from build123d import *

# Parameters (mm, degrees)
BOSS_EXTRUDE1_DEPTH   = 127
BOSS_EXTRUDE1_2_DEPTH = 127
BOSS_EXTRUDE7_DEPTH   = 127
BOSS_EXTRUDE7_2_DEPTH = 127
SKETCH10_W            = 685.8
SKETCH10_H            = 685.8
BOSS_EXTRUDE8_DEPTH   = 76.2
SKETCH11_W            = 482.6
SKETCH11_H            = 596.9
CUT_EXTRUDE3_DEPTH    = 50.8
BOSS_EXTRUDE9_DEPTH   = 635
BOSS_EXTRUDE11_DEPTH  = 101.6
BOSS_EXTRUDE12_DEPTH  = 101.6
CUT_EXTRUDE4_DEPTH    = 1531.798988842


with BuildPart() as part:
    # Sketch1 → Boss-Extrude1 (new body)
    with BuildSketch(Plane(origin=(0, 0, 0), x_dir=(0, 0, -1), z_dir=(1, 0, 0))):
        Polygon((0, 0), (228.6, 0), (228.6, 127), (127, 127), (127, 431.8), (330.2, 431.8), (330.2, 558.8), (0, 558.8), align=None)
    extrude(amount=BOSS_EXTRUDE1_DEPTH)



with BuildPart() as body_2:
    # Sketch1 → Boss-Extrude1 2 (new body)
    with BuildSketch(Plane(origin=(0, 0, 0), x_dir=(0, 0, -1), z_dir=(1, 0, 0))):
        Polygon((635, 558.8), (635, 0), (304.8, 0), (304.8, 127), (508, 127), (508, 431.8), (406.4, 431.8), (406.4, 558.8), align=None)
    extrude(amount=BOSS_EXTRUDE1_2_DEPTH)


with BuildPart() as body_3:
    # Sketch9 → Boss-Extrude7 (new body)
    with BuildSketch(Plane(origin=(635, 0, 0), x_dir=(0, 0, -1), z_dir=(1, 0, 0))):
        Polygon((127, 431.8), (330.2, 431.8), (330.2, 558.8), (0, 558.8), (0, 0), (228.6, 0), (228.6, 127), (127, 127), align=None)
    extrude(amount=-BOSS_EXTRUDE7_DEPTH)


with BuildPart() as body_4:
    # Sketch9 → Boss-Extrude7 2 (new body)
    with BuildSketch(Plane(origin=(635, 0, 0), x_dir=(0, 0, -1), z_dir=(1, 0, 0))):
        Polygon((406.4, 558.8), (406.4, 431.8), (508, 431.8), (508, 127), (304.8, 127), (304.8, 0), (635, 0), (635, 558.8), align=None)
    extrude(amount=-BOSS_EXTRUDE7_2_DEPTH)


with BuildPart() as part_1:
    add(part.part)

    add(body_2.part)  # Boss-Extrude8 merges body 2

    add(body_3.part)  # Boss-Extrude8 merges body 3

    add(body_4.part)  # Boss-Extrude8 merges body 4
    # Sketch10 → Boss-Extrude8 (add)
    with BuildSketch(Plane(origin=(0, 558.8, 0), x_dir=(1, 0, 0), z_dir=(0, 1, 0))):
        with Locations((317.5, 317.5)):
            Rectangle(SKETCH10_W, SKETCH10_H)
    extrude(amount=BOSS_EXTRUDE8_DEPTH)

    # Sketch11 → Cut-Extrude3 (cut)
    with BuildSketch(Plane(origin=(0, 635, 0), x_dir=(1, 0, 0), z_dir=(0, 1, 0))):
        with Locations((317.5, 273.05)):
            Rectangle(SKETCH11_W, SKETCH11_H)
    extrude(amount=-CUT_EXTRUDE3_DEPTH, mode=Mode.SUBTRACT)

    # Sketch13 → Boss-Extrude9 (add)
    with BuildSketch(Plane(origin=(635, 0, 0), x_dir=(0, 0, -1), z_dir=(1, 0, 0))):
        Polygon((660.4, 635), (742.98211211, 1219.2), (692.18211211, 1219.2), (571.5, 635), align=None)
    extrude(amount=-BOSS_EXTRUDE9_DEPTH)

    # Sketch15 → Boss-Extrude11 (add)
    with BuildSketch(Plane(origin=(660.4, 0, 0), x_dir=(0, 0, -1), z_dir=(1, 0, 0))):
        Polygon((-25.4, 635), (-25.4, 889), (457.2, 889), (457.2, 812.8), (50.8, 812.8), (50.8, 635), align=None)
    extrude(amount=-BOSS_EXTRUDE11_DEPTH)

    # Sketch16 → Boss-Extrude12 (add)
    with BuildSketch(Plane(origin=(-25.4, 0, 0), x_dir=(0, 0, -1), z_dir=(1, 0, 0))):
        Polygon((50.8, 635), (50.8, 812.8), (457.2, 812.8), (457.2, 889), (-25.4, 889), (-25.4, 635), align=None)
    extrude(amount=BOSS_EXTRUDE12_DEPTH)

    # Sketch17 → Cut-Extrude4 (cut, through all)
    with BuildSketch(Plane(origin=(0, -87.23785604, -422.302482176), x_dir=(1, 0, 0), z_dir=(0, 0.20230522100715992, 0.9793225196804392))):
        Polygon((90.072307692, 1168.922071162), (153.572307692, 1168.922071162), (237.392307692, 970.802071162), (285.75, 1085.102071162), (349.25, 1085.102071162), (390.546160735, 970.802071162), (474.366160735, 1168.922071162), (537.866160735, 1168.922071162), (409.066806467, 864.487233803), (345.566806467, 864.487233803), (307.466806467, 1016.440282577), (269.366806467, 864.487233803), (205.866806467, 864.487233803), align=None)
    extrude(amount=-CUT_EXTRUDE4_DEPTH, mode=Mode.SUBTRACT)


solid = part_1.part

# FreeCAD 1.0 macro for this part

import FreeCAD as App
import Part
import Sketcher
from FreeCAD import Vector
Q = App.Units.Quantity

doc = App.newDocument("Part")
params = doc.addObject("Spreadsheet::Sheet", "Params")
for row, (alias, value) in enumerate([
    ("sketch1_width", "5 in"),
    ("sketch1_width2", "12 in"),
    ("sketch1_height", "9 in"),
    ("sketch1_height2", "4 in"),
    ("sketch1_height3", "8 in"),
    ("pad1_length", "5 in"),
    ("sketch2_width", "22 in"),
    ("sketch2_width2", "5 in"),
    ("sketch2_height", "9 in"),
    ("sketch2_height2", "4 in"),
    ("sketch2_height3", "8 in"),
    ("pad2_length", "5 in"),
    ("sketch3_width", "5 in"),
    ("sketch3_width2", "22 in"),
    ("sketch3_height", "8 in"),
    ("sketch3_height2", "13 in"),
    ("sketch3_height3", "9 in"),
    ("pad3_length", "5 in"),
    ("sketch4_width", "5 in"),
    ("sketch4_width2", "12 in"),
    ("sketch4_height", "4 in"),
    ("sketch4_height2", "8 in"),
    ("sketch4_height3", "13 in"),
    ("pad4_length", "5 in"),
    ("sketch5_width", "27 in"),
    ("pad5_length", "3 in"),
    ("sketch6_width", "19 in"),
    ("sketch6_height", "23.5 in"),
    ("pocket1_length", "2 in"),
    ("sketch7_height", "2 in"),
    ("sketch7_height2", "3.5 in"),
    ("pad6_length", "25 in"),
    ("sketch8_width", "10 in"),
    ("sketch8_width2", "7 in"),
    ("sketch8_height", "16 in"),
    ("pad7_length", "4 in"),
    ("sketch9_width", "7 in"),
    ("sketch9_width2", "3 in"),
    ("sketch9_height", "16 in"),
    ("pad8_length", "4 in"),
    ("sketch10_width", "2.5 in"),
], start=1):
    params.set(f"A{row}", alias)
    params.set(f"B{row}", "=" + value)
    params.setAlias(f"B{row}", alias)

body = doc.addObject("PartDesign::Body", "Body")

# Sketch on YZ plane
sketch1 = body.newObject("Sketcher::SketchObject", "Sketch")
sketch1.AttachmentSupport = (doc.getObject("YZ_Plane"), [""])
sketch1.MapMode = "FlatFace"
sketch1.addGeometry([
    Part.LineSegment(Vector(0, 0, 0), Vector(0, -228.6, 0)),  # 0
    Part.LineSegment(Vector(0, -228.6, 0), Vector(127, -228.6, 0)),  # 1
    Part.LineSegment(Vector(127, -228.6, 0), Vector(127, -127, 0)),  # 2
    Part.LineSegment(Vector(127, -127, 0), Vector(431.8, -127, 0)),  # 3
    Part.LineSegment(Vector(431.8, -127, 0), Vector(431.8, -330.2, 0)),  # 4
    Part.LineSegment(Vector(431.8, -330.2, 0), Vector(558.8, -330.2, 0)),  # 5
    Part.LineSegment(Vector(558.8, -330.2, 0), Vector(558.8, 0, 0)),  # 6
    Part.LineSegment(Vector(558.8, 0, 0), Vector(0, 0, 0)),  # 7
], False)
sketch1.addConstraint([
    Sketcher.Constraint("Coincident", 0, 2, 1, 1),
    Sketcher.Constraint("Coincident", 1, 2, 2, 1),
    Sketcher.Constraint("Coincident", 2, 2, 3, 1),
    Sketcher.Constraint("Coincident", 3, 2, 4, 1),
    Sketcher.Constraint("Coincident", 4, 2, 5, 1),
    Sketcher.Constraint("Coincident", 5, 2, 6, 1),
    Sketcher.Constraint("Coincident", 6, 2, 7, 1),
    Sketcher.Constraint("Coincident", 7, 2, 0, 1),
    Sketcher.Constraint("Vertical", 0),
    Sketcher.Constraint("Horizontal", 1),
    Sketcher.Constraint("Vertical", 2),
    Sketcher.Constraint("Horizontal", 3),
    Sketcher.Constraint("Vertical", 4),
    Sketcher.Constraint("Horizontal", 5),
    Sketcher.Constraint("Vertical", 6),
    Sketcher.Constraint("Horizontal", 7),
    Sketcher.Constraint("Coincident", 7, 2, -1, 1),
    Sketcher.Constraint("Equal", 1, 5),
    Sketcher.Constraint("DistanceX", 1, 1, 1, 2, Q("5 in")),
    Sketcher.Constraint("DistanceX", 3, 1, 3, 2, Q("12 in")),
    Sketcher.Constraint("DistanceY", 0, 2, 0, 1, Q("9 in")),
    Sketcher.Constraint("DistanceY", 2, 1, 2, 2, Q("4 in")),
    Sketcher.Constraint("DistanceY", 4, 2, 4, 1, Q("8 in")),
])
sketch1.setExpression("Constraints[18]", "Params.sketch1_width")
sketch1.setExpression("Constraints[19]", "Params.sketch1_width2")
sketch1.setExpression("Constraints[20]", "Params.sketch1_height")
sketch1.setExpression("Constraints[21]", "Params.sketch1_height2")
sketch1.setExpression("Constraints[22]", "Params.sketch1_height3")
pad1 = body.newObject("PartDesign::Pad", "Pad")
pad1.Profile = sketch1
pad1.setExpression("Length", "Params.pad1_length")
body2 = doc.addObject("PartDesign::Body", "Body001")

# Sketch on YZ plane
sketch2 = body2.newObject("Sketcher::SketchObject", "Sketch001")
sketch2.AttachmentSupport = (doc.getObject("YZ_Plane001"), [""])
sketch2.MapMode = "FlatFace"
sketch2.addGeometry([
    Part.LineSegment(Vector(0, -635, 0), Vector(558.8, -635, 0)),  # 0
    Part.LineSegment(Vector(558.8, -635, 0), Vector(558.8, -406.4, 0)),  # 1
    Part.LineSegment(Vector(558.8, -406.4, 0), Vector(431.8, -406.4, 0)),  # 2
    Part.LineSegment(Vector(431.8, -406.4, 0), Vector(431.8, -508, 0)),  # 3
    Part.LineSegment(Vector(431.8, -508, 0), Vector(127, -508, 0)),  # 4
    Part.LineSegment(Vector(127, -508, 0), Vector(127, -304.8, 0)),  # 5
    Part.LineSegment(Vector(127, -304.8, 0), Vector(0, -304.8, 0)),  # 6
    Part.LineSegment(Vector(0, -304.8, 0), Vector(0, -635, 0)),  # 7
], False)
sketch2.addConstraint([
    Sketcher.Constraint("Coincident", 0, 2, 1, 1),
    Sketcher.Constraint("Coincident", 1, 2, 2, 1),
    Sketcher.Constraint("Coincident", 2, 2, 3, 1),
    Sketcher.Constraint("Coincident", 3, 2, 4, 1),
    Sketcher.Constraint("Coincident", 4, 2, 5, 1),
    Sketcher.Constraint("Coincident", 5, 2, 6, 1),
    Sketcher.Constraint("Coincident", 6, 2, 7, 1),
    Sketcher.Constraint("Coincident", 7, 2, 0, 1),
    Sketcher.Constraint("Horizontal", 0),
    Sketcher.Constraint("Vertical", 1),
    Sketcher.Constraint("Horizontal", 2),
    Sketcher.Constraint("Vertical", 3),
    Sketcher.Constraint("Horizontal", 4),
    Sketcher.Constraint("Vertical", 5),
    Sketcher.Constraint("Horizontal", 6),
    Sketcher.Constraint("Vertical", 7),
    Sketcher.Constraint("PointOnObject", 6, 2, -2),
    Sketcher.Constraint("Equal", 2, 6),
    Sketcher.Constraint("DistanceX", 0, 1, 0, 2, Q("22 in")),
    Sketcher.Constraint("DistanceX", 2, 2, 2, 1, Q("5 in")),
    Sketcher.Constraint("DistanceY", 1, 1, 1, 2, Q("9 in")),
    Sketcher.Constraint("DistanceY", 3, 2, 3, 1, Q("4 in")),
    Sketcher.Constraint("DistanceY", 5, 1, 5, 2, Q("8 in")),
    Sketcher.Constraint("DistanceY", 0, 2, -1, 1, Q("25 in")),
])
sketch2.setExpression("Constraints[18]", "Params.sketch2_width")
sketch2.setExpression("Constraints[19]", "Params.sketch2_width2")
sketch2.setExpression("Constraints[20]", "Params.sketch2_height")
sketch2.setExpression("Constraints[21]", "Params.sketch2_height2")
sketch2.setExpression("Constraints[22]", "Params.sketch2_height3")
pad2 = body2.newObject("PartDesign::Pad", "Pad001")
pad2.Profile = sketch2
pad2.setExpression("Length", "Params.pad2_length")
body3 = doc.addObject("PartDesign::Body", "Body002")

# Sketch on YZ plane
sketch3 = body3.newObject("Sketcher::SketchObject", "Sketch002")
sketch3.AttachmentSupport = (doc.getObject("YZ_Plane002"), [""])
sketch3.MapMode = "FlatFace"
sketch3.AttachmentOffset = App.Placement(Vector(0, 0, 25 * 25.4), App.Rotation())
sketch3.addGeometry([
    Part.LineSegment(Vector(431.8, -127, 0), Vector(431.8, -330.2, 0)),  # 0
    Part.LineSegment(Vector(431.8, -330.2, 0), Vector(558.8, -330.2, 0)),  # 1
    Part.LineSegment(Vector(558.8, -330.2, 0), Vector(558.8, 0, 0)),  # 2
    Part.LineSegment(Vector(558.8, 0, 0), Vector(0, 0, 0)),  # 3
    Part.LineSegment(Vector(0, 0, 0), Vector(0, -228.6, 0)),  # 4
    Part.LineSegment(Vector(0, -228.6, 0), Vector(127, -228.6, 0)),  # 5
    Part.LineSegment(Vector(127, -228.6, 0), Vector(127, -127, 0)),  # 6
    Part.LineSegment(Vector(127, -127, 0), Vector(431.8, -127, 0)),  # 7
], False)
sketch3.addConstraint([
    Sketcher.Constraint("Coincident", 0, 2, 1, 1),
    Sketcher.Constraint("Coincident", 1, 2, 2, 1),
    Sketcher.Constraint("Coincident", 2, 2, 3, 1),
    Sketcher.Constraint("Coincident", 3, 2, 4, 1),
    Sketcher.Constraint("Coincident", 4, 2, 5, 1),
    Sketcher.Constraint("Coincident", 5, 2, 6, 1),
    Sketcher.Constraint("Coincident", 6, 2, 7, 1),
    Sketcher.Constraint("Coincident", 7, 2, 0, 1),
    Sketcher.Constraint("Vertical", 0),
    Sketcher.Constraint("Horizontal", 1),
    Sketcher.Constraint("Vertical", 2),
    Sketcher.Constraint("Horizontal", 3),
    Sketcher.Constraint("Vertical", 4),
    Sketcher.Constraint("Horizontal", 5),
    Sketcher.Constraint("Vertical", 6),
    Sketcher.Constraint("Horizontal", 7),
    Sketcher.Constraint("Coincident", 3, 2, -1, 1),
    Sketcher.Constraint("Equal", 1, 5),
    Sketcher.Constraint("DistanceX", 1, 1, 1, 2, Q("5 in")),
    Sketcher.Constraint("DistanceX", 3, 2, 3, 1, Q("22 in")),
    Sketcher.Constraint("DistanceY", 0, 2, 0, 1, Q("8 in")),
    Sketcher.Constraint("DistanceY", 2, 1, 2, 2, Q("13 in")),
    Sketcher.Constraint("DistanceY", 4, 2, 4, 1, Q("9 in")),
])
sketch3.setExpression("Constraints[18]", "Params.sketch3_width")
sketch3.setExpression("Constraints[19]", "Params.sketch3_width2")
sketch3.setExpression("Constraints[20]", "Params.sketch3_height")
sketch3.setExpression("Constraints[21]", "Params.sketch3_height2")
sketch3.setExpression("Constraints[22]", "Params.sketch3_height3")
pad3 = body3.newObject("PartDesign::Pad", "Pad002")
pad3.Profile = sketch3
pad3.setExpression("Length", "Params.pad3_length")
pad3.Reversed = True
body4 = doc.addObject("PartDesign::Body", "Body003")

# Sketch on YZ plane
sketch4 = body4.newObject("Sketcher::SketchObject", "Sketch003")
sketch4.AttachmentSupport = (doc.getObject("YZ_Plane003"), [""])
sketch4.MapMode = "FlatFace"
sketch4.AttachmentOffset = App.Placement(Vector(0, 0, 25 * 25.4), App.Rotation())
sketch4.addGeometry([
    Part.LineSegment(Vector(558.8, -406.4, 0), Vector(431.8, -406.4, 0)),  # 0
    Part.LineSegment(Vector(431.8, -406.4, 0), Vector(431.8, -508, 0)),  # 1
    Part.LineSegment(Vector(431.8, -508, 0), Vector(127, -508, 0)),  # 2
    Part.LineSegment(Vector(127, -508, 0), Vector(127, -304.8, 0)),  # 3
    Part.LineSegment(Vector(127, -304.8, 0), Vector(0, -304.8, 0)),  # 4
    Part.LineSegment(Vector(0, -304.8, 0), Vector(0, -635, 0)),  # 5
    Part.LineSegment(Vector(0, -635, 0), Vector(558.8, -635, 0)),  # 6
    Part.LineSegment(Vector(558.8, -635, 0), Vector(558.8, -406.4, 0)),  # 7
], False)
sketch4.addConstraint([
    Sketcher.Constraint("Coincident", 0, 2, 1, 1),
    Sketcher.Constraint("Coincident", 1, 2, 2, 1),
    Sketcher.Constraint("Coincident", 2, 2, 3, 1),
    Sketcher.Constraint("Coincident", 3, 2, 4, 1),
    Sketcher.Constraint("Coincident", 4, 2, 5, 1),
    Sketcher.Constraint("Coincident", 5, 2, 6, 1),
    Sketcher.Constraint("Coincident", 6, 2, 7, 1),
    Sketcher.Constraint("Coincident", 7, 2, 0, 1),
    Sketcher.Constraint("Horizontal", 0),
    Sketcher.Constraint("Vertical", 1),
    Sketcher.Constraint("Horizontal", 2),
    Sketcher.Constraint("Vertical", 3),
    Sketcher.Constraint("Horizontal", 4),
    Sketcher.Constraint("Vertical", 5),
    Sketcher.Constraint("Horizontal", 6),
    Sketcher.Constraint("Vertical", 7),
    Sketcher.Constraint("PointOnObject", 4, 2, -2),
    Sketcher.Constraint("Equal", 0, 4),
    Sketcher.Constraint("DistanceX", 0, 2, 0, 1, Q("5 in")),
    Sketcher.Constraint("DistanceX", 2, 2, 2, 1, Q("12 in")),
    Sketcher.Constraint("DistanceY", 1, 2, 1, 1, Q("4 in")),
    Sketcher.Constraint("DistanceY", 3, 1, 3, 2, Q("8 in")),
    Sketcher.Constraint("DistanceY", 5, 2, 5, 1, Q("13 in")),
    Sketcher.Constraint("DistanceY", 0, 2, -1, 1, Q("16 in")),
])
sketch4.setExpression("Constraints[18]", "Params.sketch4_width")
sketch4.setExpression("Constraints[19]", "Params.sketch4_width2")
sketch4.setExpression("Constraints[20]", "Params.sketch4_height")
sketch4.setExpression("Constraints[21]", "Params.sketch4_height2")
sketch4.setExpression("Constraints[22]", "Params.sketch4_height3")
pad4 = body4.newObject("PartDesign::Pad", "Pad003")
pad4.Profile = sketch4
pad4.setExpression("Length", "Params.pad4_length")
pad4.Reversed = True
body.AllowCompound = True
doc.recompute()

boolean = body.newObject("PartDesign::Boolean", "Boolean")
boolean.Type = "Fuse"
boolean.addObjects([body2])
doc.recompute()

boolean2 = body.newObject("PartDesign::Boolean", "Boolean001")
boolean2.Type = "Fuse"
boolean2.addObjects([body3])
doc.recompute()

boolean3 = body.newObject("PartDesign::Boolean", "Boolean002")
boolean3.Type = "Fuse"
boolean3.addObjects([body4])

# Sketch on XZ plane
sketch5 = body.newObject("Sketcher::SketchObject", "Sketch004")
sketch5.AttachmentSupport = (doc.getObject("XZ_Plane"), [""])
sketch5.MapMode = "FlatFace"
sketch5.AttachmentOffset = App.Placement(Vector(0, 0, -22 * 25.4), App.Rotation())
sketch5.addGeometry([
    Part.LineSegment(Vector(-25.4, -660.4, 0), Vector(-25.4, 25.4, 0)),
    Part.LineSegment(Vector(-25.4, 25.4, 0), Vector(660.4, 25.4, 0)),
    Part.LineSegment(Vector(660.4, 25.4, 0), Vector(660.4, -660.4, 0)),
    Part.LineSegment(Vector(660.4, -660.4, 0), Vector(-25.4, -660.4, 0)),
], False)
sketch5.addConstraint([
    Sketcher.Constraint("Coincident", 0, 2, 1, 1),
    Sketcher.Constraint("Coincident", 1, 2, 2, 1),
    Sketcher.Constraint("Coincident", 2, 2, 3, 1),
    Sketcher.Constraint("Coincident", 3, 2, 0, 1),
    Sketcher.Constraint("Vertical", 0),
    Sketcher.Constraint("Horizontal", 1),
    Sketcher.Constraint("Vertical", 2),
    Sketcher.Constraint("Horizontal", 3),
    Sketcher.Constraint("Equal", 3, 0),
    Sketcher.Constraint("DistanceX", 1, 1, 1, 2, Q("27 in")),
    Sketcher.Constraint("DistanceX", 0, 2, -1, 1, Q("1 in")),
    Sketcher.Constraint("DistanceY", -1, 1, 0, 2, Q("1 in")),
])
sketch5.setExpression("Constraints[9]", "Params.sketch5_width")
pad5 = body.newObject("PartDesign::Pad", "Pad004")
pad5.Profile = sketch5
pad5.setExpression("Length", "Params.pad5_length")
pad5.Reversed = True

# Sketch on XZ plane
sketch6 = body.newObject("Sketcher::SketchObject", "Sketch005")
sketch6.AttachmentSupport = (doc.getObject("XZ_Plane"), [""])
sketch6.MapMode = "FlatFace"
sketch6.AttachmentOffset = App.Placement(Vector(0, 0, -25 * 25.4), App.Rotation())
sketch6.addGeometry([
    Part.LineSegment(Vector(76.2, -571.5, 0), Vector(76.2, 25.4, 0)),
    Part.LineSegment(Vector(76.2, 25.4, 0), Vector(558.8, 25.4, 0)),
    Part.LineSegment(Vector(558.8, 25.4, 0), Vector(558.8, -571.5, 0)),
    Part.LineSegment(Vector(558.8, -571.5, 0), Vector(76.2, -571.5, 0)),
], False)
sketch6.addConstraint([
    Sketcher.Constraint("Coincident", 0, 2, 1, 1),
    Sketcher.Constraint("Coincident", 1, 2, 2, 1),
    Sketcher.Constraint("Coincident", 2, 2, 3, 1),
    Sketcher.Constraint("Coincident", 3, 2, 0, 1),
    Sketcher.Constraint("Vertical", 0),
    Sketcher.Constraint("Horizontal", 1),
    Sketcher.Constraint("Vertical", 2),
    Sketcher.Constraint("Horizontal", 3),
    Sketcher.Constraint("DistanceX", 1, 1, 1, 2, Q("19 in")),
    Sketcher.Constraint("DistanceY", 0, 1, 0, 2, Q("23.5 in")),
    Sketcher.Constraint("DistanceX", -1, 1, 0, 2, Q("3 in")),
    Sketcher.Constraint("DistanceY", -1, 1, 0, 2, Q("1 in")),
])
sketch6.setExpression("Constraints[8]", "Params.sketch6_width")
sketch6.setExpression("Constraints[9]", "Params.sketch6_height")
pocket1 = body.newObject("PartDesign::Pocket", "Pocket")
pocket1.Profile = sketch6
pocket1.setExpression("Length", "Params.pocket1_length")
pocket1.Reversed = True

# Sketch on YZ plane
sketch7 = body.newObject("Sketcher::SketchObject", "Sketch006")
sketch7.AttachmentSupport = (doc.getObject("YZ_Plane"), [""])
sketch7.MapMode = "FlatFace"
sketch7.AttachmentOffset = App.Placement(Vector(0, 0, 25 * 25.4), App.Rotation())
sketch7.addGeometry([
    Part.LineSegment(Vector(635, -660.4, 0), Vector(1219.2, -742.982112, 0)),
    Part.LineSegment(Vector(1219.2, -742.982112, 0), Vector(1219.2, -692.182112, 0)),
    Part.LineSegment(Vector(1219.2, -692.182112, 0), Vector(635, -571.5, 0)),
    Part.LineSegment(Vector(635, -571.5, 0), Vector(635, -660.4, 0)),
], False)
sketch7.addConstraint([
    Sketcher.Constraint("Coincident", 0, 2, 1, 1),
    Sketcher.Constraint("Coincident", 1, 2, 2, 1),
    Sketcher.Constraint("Coincident", 2, 2, 3, 1),
    Sketcher.Constraint("Coincident", 3, 2, 0, 1),
    Sketcher.Constraint("Vertical", 1),
    Sketcher.Constraint("Vertical", 3),
    Sketcher.Constraint("DistanceY", 1, 1, 1, 2, Q("2 in")),
    Sketcher.Constraint("DistanceY", 3, 2, 3, 1, Q("3.5 in")),
    Sketcher.Constraint("DistanceX", -1, 1, 0, 2, Q("48 in")),
    Sketcher.Constraint("DistanceX", -1, 1, 2, 2, Q("25 in")),
    Sketcher.Constraint("DistanceY", 3, 2, -1, 1, Q("26 in")),
    Sketcher.Constraint("Distance", 0, Q("590.008004 mm")),
])
sketch7.setExpression("Constraints[6]", "Params.sketch7_height")
sketch7.setExpression("Constraints[7]", "Params.sketch7_height2")
pad6 = body.newObject("PartDesign::Pad", "Pad005")
pad6.Profile = sketch7
pad6.setExpression("Length", "Params.pad6_length")
pad6.Reversed = True

# Sketch on YZ plane
sketch8 = body.newObject("Sketcher::SketchObject", "Sketch007")
sketch8.AttachmentSupport = (doc.getObject("YZ_Plane"), [""])
sketch8.MapMode = "FlatFace"
sketch8.AttachmentOffset = App.Placement(Vector(0, 0, 26 * 25.4), App.Rotation())
sketch8.addGeometry([
    Part.LineSegment(Vector(889, 25.4, 0), Vector(635, 25.4, 0)),  # 0
    Part.LineSegment(Vector(635, 25.4, 0), Vector(635, -50.8, 0)),  # 1
    Part.LineSegment(Vector(635, -50.8, 0), Vector(812.8, -50.8, 0)),  # 2
    Part.LineSegment(Vector(812.8, -50.8, 0), Vector(812.8, -457.2, 0)),  # 3
    Part.LineSegment(Vector(812.8, -457.2, 0), Vector(889, -457.2, 0)),  # 4
    Part.LineSegment(Vector(889, -457.2, 0), Vector(889, 25.4, 0)),  # 5
], False)
sketch8.addConstraint([
    Sketcher.Constraint("Coincident", 0, 2, 1, 1),
    Sketcher.Constraint("Coincident", 1, 2, 2, 1),
    Sketcher.Constraint("Coincident", 2, 2, 3, 1),
    Sketcher.Constraint("Coincident", 3, 2, 4, 1),
    Sketcher.Constraint("Coincident", 4, 2, 5, 1),
    Sketcher.Constraint("Coincident", 5, 2, 0, 1),
    Sketcher.Constraint("Horizontal", 0),
    Sketcher.Constraint("Vertical", 1),
    Sketcher.Constraint("Horizontal", 2),
    Sketcher.Constraint("Vertical", 3),
    Sketcher.Constraint("Horizontal", 4),
    Sketcher.Constraint("Vertical", 5),
    Sketcher.Constraint("Equal", 4, 1),
    Sketcher.Constraint("DistanceX", 0, 2, 0, 1, Q("10 in")),
    Sketcher.Constraint("DistanceX", 2, 1, 2, 2, Q("7 in")),
    Sketcher.Constraint("DistanceY", 3, 2, 3, 1, Q("16 in")),
    Sketcher.Constraint("DistanceX", -1, 1, 0, 2, Q("25 in")),
    Sketcher.Constraint("DistanceY", -1, 1, 0, 2, Q("1 in")),
])
sketch8.setExpression("Constraints[13]", "Params.sketch8_width")
sketch8.setExpression("Constraints[14]", "Params.sketch8_width2")
sketch8.setExpression("Constraints[15]", "Params.sketch8_height")
pad7 = body.newObject("PartDesign::Pad", "Pad006")
pad7.Profile = sketch8
pad7.setExpression("Length", "Params.pad7_length")
pad7.Reversed = True

# Sketch on YZ plane
sketch9 = body.newObject("Sketcher::SketchObject", "Sketch008")
sketch9.AttachmentSupport = (doc.getObject("YZ_Plane"), [""])
sketch9.MapMode = "FlatFace"
sketch9.AttachmentOffset = App.Placement(Vector(0, 0, -1 * 25.4), App.Rotation())
sketch9.addGeometry([
    Part.LineSegment(Vector(635, -50.8, 0), Vector(812.8, -50.8, 0)),  # 0
    Part.LineSegment(Vector(812.8, -50.8, 0), Vector(812.8, -457.2, 0)),  # 1
    Part.LineSegment(Vector(812.8, -457.2, 0), Vector(889, -457.2, 0)),  # 2
    Part.LineSegment(Vector(889, -457.2, 0), Vector(889, 25.4, 0)),  # 3
    Part.LineSegment(Vector(889, 25.4, 0), Vector(635, 25.4, 0)),  # 4
    Part.LineSegment(Vector(635, 25.4, 0), Vector(635, -50.8, 0)),  # 5
], False)
sketch9.addConstraint([
    Sketcher.Constraint("Coincident", 0, 2, 1, 1),
    Sketcher.Constraint("Coincident", 1, 2, 2, 1),
    Sketcher.Constraint("Coincident", 2, 2, 3, 1),
    Sketcher.Constraint("Coincident", 3, 2, 4, 1),
    Sketcher.Constraint("Coincident", 4, 2, 5, 1),
    Sketcher.Constraint("Coincident", 5, 2, 0, 1),
    Sketcher.Constraint("Horizontal", 0),
    Sketcher.Constraint("Vertical", 1),
    Sketcher.Constraint("Horizontal", 2),
    Sketcher.Constraint("Vertical", 3),
    Sketcher.Constraint("Horizontal", 4),
    Sketcher.Constraint("Vertical", 5),
    Sketcher.Constraint("Equal", 2, 5),
    Sketcher.Constraint("DistanceX", 0, 1, 0, 2, Q("7 in")),
    Sketcher.Constraint("DistanceX", 2, 1, 2, 2, Q("3 in")),
    Sketcher.Constraint("DistanceY", 1, 2, 1, 1, Q("16 in")),
    Sketcher.Constraint("DistanceX", -1, 1, 0, 2, Q("32 in")),
    Sketcher.Constraint("DistanceY", 0, 2, -1, 1, Q("2 in")),
])
sketch9.setExpression("Constraints[13]", "Params.sketch9_width")
sketch9.setExpression("Constraints[14]", "Params.sketch9_width2")
sketch9.setExpression("Constraints[15]", "Params.sketch9_height")
pad8 = body.newObject("PartDesign::Pad", "Pad007")
pad8.Profile = sketch9
pad8.setExpression("Length", "Params.pad8_length")

# Sketch on an angled plane
sketch10 = body.newObject("Sketcher::SketchObject", "Sketch009")
sketch10.Placement = App.Placement(Vector(0, -87.237856, -422.302482), App.Rotation(Vector(1, 0, 0), Vector(0, 0.97932252, -0.202305221), Vector(0, 0.202305221, 0.97932252), "ZXY"))
sketch10.addGeometry([
    Part.LineSegment(Vector(153.572308, 1168.922072, 0), Vector(90.072308, 1168.922072, 0)),  # 0
    Part.LineSegment(Vector(90.072308, 1168.922072, 0), Vector(205.866806, 864.487234, 0)),  # 1
    Part.LineSegment(Vector(205.866806, 864.487234, 0), Vector(269.366806, 864.487234, 0)),  # 2
    Part.LineSegment(Vector(269.366806, 864.487234, 0), Vector(307.466806, 1016.440283, 0)),  # 3
    Part.LineSegment(Vector(307.466806, 1016.440283, 0), Vector(345.566806, 864.487234, 0)),  # 4
    Part.LineSegment(Vector(345.566806, 864.487234, 0), Vector(409.066806, 864.487234, 0)),  # 5
    Part.LineSegment(Vector(409.066806, 864.487234, 0), Vector(537.866161, 1168.922072, 0)),  # 6
    Part.LineSegment(Vector(537.866161, 1168.922072, 0), Vector(474.366161, 1168.922072, 0)),  # 7
    Part.LineSegment(Vector(474.366161, 1168.922072, 0), Vector(390.546161, 970.802072, 0)),  # 8
    Part.LineSegment(Vector(390.546161, 970.802072, 0), Vector(349.25, 1085.102072, 0)),  # 9
    Part.LineSegment(Vector(349.25, 1085.102072, 0), Vector(285.75, 1085.102072, 0)),  # 10
    Part.LineSegment(Vector(285.75, 1085.102072, 0), Vector(237.392308, 970.802072, 0)),  # 11
    Part.LineSegment(Vector(237.392308, 970.802072, 0), Vector(153.572308, 1168.922072, 0)),  # 12
], False)
sketch10.addConstraint([
    Sketcher.Constraint("Coincident", 0, 2, 1, 1),
    Sketcher.Constraint("Coincident", 1, 2, 2, 1),
    Sketcher.Constraint("Coincident", 2, 2, 3, 1),
    Sketcher.Constraint("Coincident", 3, 2, 4, 1),
    Sketcher.Constraint("Coincident", 4, 2, 5, 1),
    Sketcher.Constraint("Coincident", 5, 2, 6, 1),
    Sketcher.Constraint("Coincident", 6, 2, 7, 1),
    Sketcher.Constraint("Coincident", 7, 2, 8, 1),
    Sketcher.Constraint("Coincident", 8, 2, 9, 1),
    Sketcher.Constraint("Coincident", 9, 2, 10, 1),
    Sketcher.Constraint("Coincident", 10, 2, 11, 1),
    Sketcher.Constraint("Coincident", 11, 2, 12, 1),
    Sketcher.Constraint("Coincident", 12, 2, 0, 1),
    Sketcher.Constraint("Horizontal", 0),
    Sketcher.Constraint("Horizontal", 2),
    Sketcher.Constraint("Horizontal", 5),
    Sketcher.Constraint("Horizontal", 7),
    Sketcher.Constraint("Horizontal", 10),
    Sketcher.Constraint("Parallel", 6, 8),
    Sketcher.Constraint("Parallel", 8, 11),
    Sketcher.Constraint("Horizontal", 2, 2, 4, 2),
    Sketcher.Constraint("Horizontal", 0, 2, 6, 2),
    Sketcher.Constraint("Horizontal", 8, 2, 11, 2),
    Sketcher.Constraint("Equal", 0, 2),
    Sketcher.Constraint("Equal", 2, 5),
    Sketcher.Constraint("Equal", 5, 7),
    Sketcher.Constraint("Equal", 7, 10),
    Sketcher.Constraint("Equal", 3, 4),
    Sketcher.Constraint("Equal", 8, 12),
    Sketcher.Constraint("DistanceX", 0, 2, 0, 1, Q("2.5 in")),
    Sketcher.Constraint("DistanceX", 1, 2, 3, 2, Q("4 in")),
    Sketcher.Constraint("DistanceY", 8, 2, 9, 2, Q("4.5 in")),
    Sketcher.Constraint("DistanceY", 9, 2, 7, 2, Q("3.3 in")),
    Sketcher.Constraint("DistanceX", 12, 2, 11, 2, Q("3.3 in")),
    Sketcher.Constraint("DistanceX", -1, 1, 9, 2, Q("13.75 in")),
    Sketcher.Constraint("DistanceX", 0, 2, 1, 2, Q("115.794499 mm")),
    Sketcher.Constraint("DistanceY", -1, 1, 0, 2, Q("1168.922072 mm")),
    Sketcher.Constraint("DistanceX", -1, 1, 6, 2, Q("537.866161 mm")),
    Sketcher.Constraint("DistanceY", 2, 2, 3, 2, Q("151.953049 mm")),
])
sketch10.setExpression("Constraints[29]", "Params.sketch10_width")
pocket2 = body.newObject("PartDesign::Pocket", "Pocket001")
pocket2.Profile = sketch10
pocket2.Type = "ThroughAll"

doc.recompute()
